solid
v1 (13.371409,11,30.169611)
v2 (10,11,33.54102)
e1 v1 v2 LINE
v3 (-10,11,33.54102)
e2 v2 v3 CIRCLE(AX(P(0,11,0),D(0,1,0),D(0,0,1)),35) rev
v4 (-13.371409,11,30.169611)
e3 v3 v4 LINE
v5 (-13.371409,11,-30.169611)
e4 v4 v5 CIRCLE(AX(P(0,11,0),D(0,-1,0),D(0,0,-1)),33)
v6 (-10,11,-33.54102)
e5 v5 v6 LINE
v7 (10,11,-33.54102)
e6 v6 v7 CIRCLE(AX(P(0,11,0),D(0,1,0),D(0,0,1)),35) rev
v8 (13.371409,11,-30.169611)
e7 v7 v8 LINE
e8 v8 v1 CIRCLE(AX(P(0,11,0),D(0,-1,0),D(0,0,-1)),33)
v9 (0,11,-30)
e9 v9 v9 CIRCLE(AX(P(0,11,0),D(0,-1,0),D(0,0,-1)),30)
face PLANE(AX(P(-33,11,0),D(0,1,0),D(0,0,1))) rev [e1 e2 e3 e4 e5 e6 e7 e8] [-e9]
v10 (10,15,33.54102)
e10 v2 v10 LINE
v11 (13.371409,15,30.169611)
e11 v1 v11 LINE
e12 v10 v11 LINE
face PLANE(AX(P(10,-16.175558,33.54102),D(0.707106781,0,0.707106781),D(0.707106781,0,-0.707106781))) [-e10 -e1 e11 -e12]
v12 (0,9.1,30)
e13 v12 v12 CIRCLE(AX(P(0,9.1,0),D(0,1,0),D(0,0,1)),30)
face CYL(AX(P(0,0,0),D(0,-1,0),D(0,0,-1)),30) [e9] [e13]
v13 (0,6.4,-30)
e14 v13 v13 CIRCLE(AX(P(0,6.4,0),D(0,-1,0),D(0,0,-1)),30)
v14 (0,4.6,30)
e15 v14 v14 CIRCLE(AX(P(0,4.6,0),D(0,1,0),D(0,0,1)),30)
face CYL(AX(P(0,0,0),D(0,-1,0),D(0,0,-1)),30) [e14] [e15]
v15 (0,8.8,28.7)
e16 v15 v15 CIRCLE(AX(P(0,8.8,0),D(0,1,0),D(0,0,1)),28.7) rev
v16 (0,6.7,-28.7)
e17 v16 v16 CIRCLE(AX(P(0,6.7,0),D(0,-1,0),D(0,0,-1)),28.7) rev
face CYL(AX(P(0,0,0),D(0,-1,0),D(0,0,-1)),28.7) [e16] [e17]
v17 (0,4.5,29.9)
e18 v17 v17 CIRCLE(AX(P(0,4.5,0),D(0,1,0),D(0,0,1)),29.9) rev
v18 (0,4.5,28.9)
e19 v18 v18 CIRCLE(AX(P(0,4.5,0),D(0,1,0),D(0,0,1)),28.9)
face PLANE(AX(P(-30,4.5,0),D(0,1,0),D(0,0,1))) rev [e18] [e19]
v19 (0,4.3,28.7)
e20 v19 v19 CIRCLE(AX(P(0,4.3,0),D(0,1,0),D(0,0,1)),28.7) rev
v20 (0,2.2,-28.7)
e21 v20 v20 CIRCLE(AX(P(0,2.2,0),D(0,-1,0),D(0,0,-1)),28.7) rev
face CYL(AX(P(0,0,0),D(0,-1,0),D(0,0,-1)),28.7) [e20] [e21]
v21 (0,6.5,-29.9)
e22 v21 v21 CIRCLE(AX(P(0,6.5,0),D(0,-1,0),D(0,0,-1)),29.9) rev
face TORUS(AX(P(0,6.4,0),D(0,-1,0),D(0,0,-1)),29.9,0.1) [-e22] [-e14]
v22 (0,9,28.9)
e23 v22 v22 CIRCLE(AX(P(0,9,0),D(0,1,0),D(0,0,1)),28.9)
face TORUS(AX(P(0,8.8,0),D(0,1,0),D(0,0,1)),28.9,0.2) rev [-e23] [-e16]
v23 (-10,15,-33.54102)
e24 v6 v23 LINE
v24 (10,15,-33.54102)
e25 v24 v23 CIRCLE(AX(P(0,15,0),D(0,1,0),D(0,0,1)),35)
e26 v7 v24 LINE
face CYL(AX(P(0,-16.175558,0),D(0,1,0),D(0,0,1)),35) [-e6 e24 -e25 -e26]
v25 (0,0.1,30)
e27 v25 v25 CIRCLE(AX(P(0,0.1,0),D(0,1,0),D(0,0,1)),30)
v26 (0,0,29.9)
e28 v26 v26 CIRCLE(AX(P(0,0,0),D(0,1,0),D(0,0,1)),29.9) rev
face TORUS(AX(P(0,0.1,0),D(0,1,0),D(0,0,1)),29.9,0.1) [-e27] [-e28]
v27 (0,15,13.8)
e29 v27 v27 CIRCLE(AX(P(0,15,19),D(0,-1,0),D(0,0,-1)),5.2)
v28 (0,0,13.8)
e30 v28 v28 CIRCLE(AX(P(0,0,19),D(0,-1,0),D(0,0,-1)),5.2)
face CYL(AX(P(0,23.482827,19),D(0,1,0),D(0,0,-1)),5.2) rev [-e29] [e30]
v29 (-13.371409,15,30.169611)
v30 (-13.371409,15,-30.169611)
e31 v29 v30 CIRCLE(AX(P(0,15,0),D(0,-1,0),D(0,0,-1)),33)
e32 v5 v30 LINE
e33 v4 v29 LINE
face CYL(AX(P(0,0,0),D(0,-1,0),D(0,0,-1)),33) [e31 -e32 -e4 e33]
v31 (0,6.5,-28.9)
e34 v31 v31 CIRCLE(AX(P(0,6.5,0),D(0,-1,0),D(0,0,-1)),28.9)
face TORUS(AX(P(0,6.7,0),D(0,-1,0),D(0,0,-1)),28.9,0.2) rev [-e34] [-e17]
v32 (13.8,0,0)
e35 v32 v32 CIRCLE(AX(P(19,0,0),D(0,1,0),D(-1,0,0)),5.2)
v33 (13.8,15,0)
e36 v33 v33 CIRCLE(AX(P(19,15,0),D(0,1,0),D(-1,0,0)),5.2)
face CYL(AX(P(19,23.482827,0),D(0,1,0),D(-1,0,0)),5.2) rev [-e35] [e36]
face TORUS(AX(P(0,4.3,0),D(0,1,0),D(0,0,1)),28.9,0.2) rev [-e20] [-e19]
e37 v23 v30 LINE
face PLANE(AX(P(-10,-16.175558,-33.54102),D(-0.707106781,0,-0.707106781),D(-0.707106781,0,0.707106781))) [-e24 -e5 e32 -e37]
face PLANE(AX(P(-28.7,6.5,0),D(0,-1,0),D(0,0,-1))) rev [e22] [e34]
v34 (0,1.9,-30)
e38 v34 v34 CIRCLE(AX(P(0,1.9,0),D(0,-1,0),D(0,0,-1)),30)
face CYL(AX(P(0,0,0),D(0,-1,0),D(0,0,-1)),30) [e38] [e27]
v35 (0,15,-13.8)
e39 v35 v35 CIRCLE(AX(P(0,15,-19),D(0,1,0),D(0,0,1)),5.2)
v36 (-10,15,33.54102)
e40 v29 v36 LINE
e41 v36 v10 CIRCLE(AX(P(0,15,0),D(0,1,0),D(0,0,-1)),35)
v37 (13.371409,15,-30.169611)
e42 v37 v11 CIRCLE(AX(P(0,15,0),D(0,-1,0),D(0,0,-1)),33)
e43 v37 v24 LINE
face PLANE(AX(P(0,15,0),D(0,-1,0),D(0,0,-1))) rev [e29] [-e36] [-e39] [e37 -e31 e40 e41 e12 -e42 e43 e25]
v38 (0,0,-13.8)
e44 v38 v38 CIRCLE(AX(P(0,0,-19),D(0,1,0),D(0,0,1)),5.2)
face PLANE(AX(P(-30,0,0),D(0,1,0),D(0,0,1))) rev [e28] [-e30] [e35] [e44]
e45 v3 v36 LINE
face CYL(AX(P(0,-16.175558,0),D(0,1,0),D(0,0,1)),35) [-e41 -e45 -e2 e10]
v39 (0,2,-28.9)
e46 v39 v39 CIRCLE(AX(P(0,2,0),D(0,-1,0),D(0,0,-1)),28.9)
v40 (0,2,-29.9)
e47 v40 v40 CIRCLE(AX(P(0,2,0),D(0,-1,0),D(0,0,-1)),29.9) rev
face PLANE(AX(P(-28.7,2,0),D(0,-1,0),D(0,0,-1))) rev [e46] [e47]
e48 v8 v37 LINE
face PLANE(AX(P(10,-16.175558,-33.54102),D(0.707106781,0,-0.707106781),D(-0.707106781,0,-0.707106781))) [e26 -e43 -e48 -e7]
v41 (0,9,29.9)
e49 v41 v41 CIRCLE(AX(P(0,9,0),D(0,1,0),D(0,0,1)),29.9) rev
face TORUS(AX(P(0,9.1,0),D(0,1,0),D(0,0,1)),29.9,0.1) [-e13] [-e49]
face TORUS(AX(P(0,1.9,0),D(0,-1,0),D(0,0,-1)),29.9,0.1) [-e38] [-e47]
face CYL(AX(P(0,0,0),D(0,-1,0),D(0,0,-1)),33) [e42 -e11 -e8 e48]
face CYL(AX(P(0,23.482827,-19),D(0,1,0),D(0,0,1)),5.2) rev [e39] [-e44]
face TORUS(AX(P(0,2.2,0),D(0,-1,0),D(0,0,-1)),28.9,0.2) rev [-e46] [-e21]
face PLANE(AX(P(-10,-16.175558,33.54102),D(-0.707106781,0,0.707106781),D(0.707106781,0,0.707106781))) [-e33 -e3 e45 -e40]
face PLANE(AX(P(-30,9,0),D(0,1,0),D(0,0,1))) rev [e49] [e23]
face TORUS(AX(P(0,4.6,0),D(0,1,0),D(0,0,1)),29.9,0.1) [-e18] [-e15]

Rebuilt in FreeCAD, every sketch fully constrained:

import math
import FreeCAD as App
import Part
import Sketcher
from FreeCAD import Vector


def edges_at(feature, points):
    """Names of the edges that pass closest to the given points."""
    edges = feature.Shape.Edges
    near = lambda p: min(range(len(edges)), key=lambda i: edges[i].distToShape(Part.Vertex(*p))[0])
    return sorted({f"Edge{near(p) + 1}" for p in points})

doc = App.newDocument("Part")
body = doc.addObject("PartDesign::Body", "Body")

sketch1 = body.newObject("Sketcher::SketchObject", "Sketch")
sketch1.AttachmentSupport = (doc.getObject("XY_Plane"), [""])
sketch1.MapMode = "FlatFace"
sketch1.addGeometry([
    Part.LineSegment(Vector(0, 15, 0), Vector(-33, 15, 0)),
    Part.LineSegment(Vector(-33, 15, 0), Vector(-33, 11, 0)),
    Part.LineSegment(Vector(-33, 11, 0), Vector(-30, 11, 0)),
    Part.LineSegment(Vector(-30, 11, 0), Vector(-30, 9, 0)),
    Part.LineSegment(Vector(-30, 9, 0), Vector(-28.7, 9, 0)),
    Part.LineSegment(Vector(-28.7, 9, 0), Vector(-28.7, 6.5, 0)),
    Part.LineSegment(Vector(-28.7, 6.5, 0), Vector(-30, 6.5, 0)),
    Part.LineSegment(Vector(-30, 6.5, 0), Vector(-30, 4.5, 0)),
    Part.LineSegment(Vector(-30, 4.5, 0), Vector(-28.7, 4.5, 0)),
    Part.LineSegment(Vector(-28.7, 4.5, 0), Vector(-28.7, 2, 0)),
    Part.LineSegment(Vector(-28.7, 2, 0), Vector(-30, 2, 0)),
    Part.LineSegment(Vector(-30, 2, 0), Vector(-30, 0, 0)),
    Part.LineSegment(Vector(-30, 0, 0), Vector(0, 0, 0)),
    Part.LineSegment(Vector(0, 0, 0), Vector(0, 15, 0)),
], False)
sketch1.addConstraint([
    Sketcher.Constraint("Coincident", 0, 2, 1, 1),
    Sketcher.Constraint("Coincident", 1, 2, 2, 1),
    Sketcher.Constraint("Coincident", 2, 2, 3, 1),
    Sketcher.Constraint("Coincident", 3, 2, 4, 1),
    Sketcher.Constraint("Coincident", 4, 2, 5, 1),
    Sketcher.Constraint("Coincident", 5, 2, 6, 1),
    Sketcher.Constraint("Coincident", 6, 2, 7, 1),
    Sketcher.Constraint("Coincident", 7, 2, 8, 1),
    Sketcher.Constraint("Coincident", 8, 2, 9, 1),
    Sketcher.Constraint("Coincident", 9, 2, 10, 1),
    Sketcher.Constraint("Coincident", 10, 2, 11, 1),
    Sketcher.Constraint("Coincident", 11, 2, 12, 1),
    Sketcher.Constraint("Coincident", 12, 2, 13, 1),
    Sketcher.Constraint("Coincident", 13, 2, 0, 1),
    Sketcher.Constraint("Horizontal", 0),
    Sketcher.Constraint("Vertical", 1),
    Sketcher.Constraint("Horizontal", 2),
    Sketcher.Constraint("Vertical", 3),
    Sketcher.Constraint("Horizontal", 4),
    Sketcher.Constraint("Vertical", 5),
    Sketcher.Constraint("Horizontal", 6),
    Sketcher.Constraint("Vertical", 7),
    Sketcher.Constraint("Horizontal", 8),
    Sketcher.Constraint("Vertical", 9),
    Sketcher.Constraint("Horizontal", 10),
    Sketcher.Constraint("Vertical", 11),
    Sketcher.Constraint("Horizontal", 12),
    Sketcher.Constraint("Vertical", 13),
    Sketcher.Constraint("Coincident", 12, 2, -1, 1),
    Sketcher.Constraint("Vertical", 3, 2, 6, 2),
    Sketcher.Constraint("Vertical", 5, 2, 8, 2),
    Sketcher.Constraint("Vertical", 7, 2, 10, 2),
    Sketcher.Constraint("Equal", 3, 7),
    Sketcher.Constraint("Equal", 5, 9),
    Sketcher.Constraint("Equal", 7, 11),
    Sketcher.Constraint("DistanceX", 0, 2, 0, 1, 33.0),
    Sketcher.Constraint("DistanceX", 2, 1, 2, 2, 3.0),
    Sketcher.Constraint("DistanceY", 1, 2, 1, 1, 4.0),
    Sketcher.Constraint("DistanceY", 3, 2, 3, 1, 2.0),
    Sketcher.Constraint("DistanceY", 13, 1, 13, 2, 15.0),
    Sketcher.Constraint("DistanceX", 4, 1, 4, 2, 1.3),
])
revolution = body.newObject("PartDesign::Revolution", "Revolution")
revolution.Profile = sketch1
revolution.ReferenceAxis = (sketch1, ["V_Axis"])
revolution.Angle = 360

sketch2 = body.newObject("Sketcher::SketchObject", "Sketch001")
sketch2.AttachmentSupport = (doc.getObject("YZ_Plane"), [""])
sketch2.MapMode = "FlatFace"
sketch2.addGeometry([
    Part.LineSegment(Vector(15, -19, 0), Vector(0, -19, 0)),
    Part.LineSegment(Vector(0, -19, 0), Vector(0, -24, 0)),
    Part.LineSegment(Vector(0, -24, 0), Vector(15, -24, 0)),
    Part.LineSegment(Vector(15, -24, 0), Vector(15, -19, 0)),
], False)
sketch2.addGeometry(Part.LineSegment(Vector(15, -19, 0), Vector(0, -19, 0)), True)
sketch2.addConstraint([
    Sketcher.Constraint("Coincident", 0, 2, 1, 1),
    Sketcher.Constraint("Coincident", 1, 2, 2, 1),
    Sketcher.Constraint("Coincident", 2, 2, 3, 1),
    Sketcher.Constraint("Coincident", 3, 2, 0, 1),
    Sketcher.Constraint("Horizontal", 0),
    Sketcher.Constraint("Vertical", 1),
    Sketcher.Constraint("Horizontal", 2),
    Sketcher.Constraint("Vertical", 3),
    Sketcher.Constraint("Horizontal", 4),
    Sketcher.Constraint("Coincident", 4, 1, 3, 2),
    Sketcher.Constraint("PointOnObject", 0, 2, -2),
    Sketcher.Constraint("PointOnObject", 4, 2, -2),
    Sketcher.Constraint("DistanceX", 0, 2, 0, 1, 15.0),
    Sketcher.Constraint("DistanceY", 1, 2, 1, 1, 5.2),
    Sketcher.Constraint("DistanceY", 0, 2, -1, 1, 19.0),
])
groove = body.newObject("PartDesign::Groove", "Groove")
groove.Profile = sketch2
groove.ReferenceAxis = (sketch2, ["Axis0"])
groove.Angle = 360
doc.recompute()

mirrored = body.newObject("PartDesign::Mirrored", "Mirrored")
mirrored.Originals = [groove]
mirrored.MirrorPlane = (doc.getObject("XY_Plane"), [""])
body.Tip = mirrored
doc.recompute()

polarpattern = body.newObject("PartDesign::PolarPattern", "PolarPattern")
polarpattern.Originals = [groove]
polarpattern.Axis = (doc.getObject("Y_Axis"), [""])
polarpattern.Angle = 90
polarpattern.Occurrences = 2
polarpattern.Reversed = True
body.Tip = polarpattern

sketch3 = body.newObject("Sketcher::SketchObject", "Sketch002")
sketch3.AttachmentSupport = (doc.getObject("XZ_Plane"), [""])
sketch3.MapMode = "FlatFace"
sketch3.AttachmentOffset = App.Placement(Vector(0, 0, -11), App.Rotation())
sketch3.addGeometry([
    Part.LineSegment(Vector(-10, -33.5, 0), Vector(-13.4, -30.2, 0)),
    Part.ArcOfCircle(Part.Circle(Vector(0, 0, 0), Vector(0, 0, 1), 33), math.radians(-114), math.radians(-66)),
    Part.LineSegment(Vector(13.4, -30.2, 0), Vector(10, -33.5, 0)),
    Part.ArcOfCircle(Part.Circle(Vector(0, 0, 0), Vector(0, 0, 1), 35), math.radians(-90), math.radians(-73.4)),
    Part.ArcOfCircle(Part.Circle(Vector(0, 0, 0), Vector(0, 0, 1), 35), math.radians(-106.6), math.radians(-90)),
], False)
sketch3.addConstraint([
    Sketcher.Constraint("Coincident", 0, 2, 1, 1),
    Sketcher.Constraint("Coincident", 1, 2, 2, 1),
    Sketcher.Constraint("Coincident", 2, 2, 3, 2),
    Sketcher.Constraint("Tangent", 3, 1, 4, 2),
    Sketcher.Constraint("Coincident", 4, 1, 0, 1),
    Sketcher.Constraint("Coincident", 1, 3, -1, 1),
    Sketcher.Constraint("Coincident", 3, 3, -1, 1),
    Sketcher.Constraint("Equal", 3, 4),
    Sketcher.Constraint("PointOnObject", 3, 1, -2),
    Sketcher.Constraint("Perpendicular", 0, 2),
    Sketcher.Constraint("Horizontal", 0, 2, 1, 2),
    Sketcher.Constraint("Horizontal", 2, 2, 4, 1),
    Sketcher.Constraint("Radius", 1, 33.0),
    Sketcher.Constraint("Radius", 3, 35.0),
    Sketcher.Constraint("DistanceX", -1, 1, 2, 2, 10.0),
])
pad1 = body.newObject("PartDesign::Pad", "Pad")
pad1.Profile = sketch3
pad1.Length = 4
pad1.Reversed = True
doc.recompute()

polarpattern2 = body.newObject("PartDesign::PolarPattern", "PolarPattern001")
polarpattern2.Originals = [pad1]
polarpattern2.Axis = (doc.getObject("Y_Axis"), [""])
polarpattern2.Angle = 360
polarpattern2.Occurrences = 2
body.Tip = polarpattern2
doc.recompute()

fillet = body.newObject("PartDesign::Fillet", "Fillet")
fillet.Base = (polarpattern2, edges_at(polarpattern2, [
    (0, 2, 30),
    (0, 4.5, 30),
    (0, 6.5, 30),
    (0, 9, 30),
    (0, 0, 30),
]))
fillet.Radius = 0.1
doc.recompute()

fillet2 = body.newObject("PartDesign::Fillet", "Fillet001")
fillet2.Base = (fillet, edges_at(fillet, [
    (0, 2, 28.7),
    (0, 4.5, 28.7),
    (0, 6.5, 28.7),
    (0, 9, 28.7),
]))
fillet2.Radius = 0.2

doc.recompute()
